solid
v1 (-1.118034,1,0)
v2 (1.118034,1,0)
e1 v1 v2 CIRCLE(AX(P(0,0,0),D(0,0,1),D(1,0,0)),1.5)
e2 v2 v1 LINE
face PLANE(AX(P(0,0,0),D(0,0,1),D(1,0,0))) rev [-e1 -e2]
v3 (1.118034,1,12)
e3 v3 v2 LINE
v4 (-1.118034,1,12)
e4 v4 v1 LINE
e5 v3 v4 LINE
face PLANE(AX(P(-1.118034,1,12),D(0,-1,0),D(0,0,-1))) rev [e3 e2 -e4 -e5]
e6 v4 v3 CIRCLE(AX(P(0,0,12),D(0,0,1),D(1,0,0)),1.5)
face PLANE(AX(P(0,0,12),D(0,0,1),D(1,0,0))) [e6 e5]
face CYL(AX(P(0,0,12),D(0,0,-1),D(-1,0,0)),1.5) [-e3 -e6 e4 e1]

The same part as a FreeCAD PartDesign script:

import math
import FreeCAD as App
import Part
import Sketcher
Q = App.Units.Quantity

doc = App.newDocument("Part")
body = doc.addObject("PartDesign::Body", "Body")

# Sketch on XY plane
sketch1 = doc.addObject("Sketcher::SketchObject", "Sketch")
body.addObject(sketch1)
sketch1.AttachmentSupport = (doc.XY_Plane, [""])
sketch1.MapMode = "FlatFace"
sketch1.addGeometry(Part.LineSegment(App.Vector(1.1, 1, 0), App.Vector(-1.1, 1, 0)), False)
sketch1.addGeometry(Part.ArcOfCircle(Part.Circle(App.Vector(0, 0, 0), App.Vector(0, 0, 1), 1.5), math.radians(138), math.radians(402)), False)
sketch1.addConstraint(Sketcher.Constraint("Coincident", 0, 1, 1, 2))
sketch1.addConstraint(Sketcher.Constraint("Coincident", 1, 1, 0, 2))
sketch1.addConstraint(Sketcher.Constraint("Horizontal", 0))
sketch1.addConstraint(Sketcher.Constraint("Coincident", 1, 3, -1, 1))
sketch1.addConstraint(Sketcher.Constraint("Radius", 1, Q("1.5 mm")))
sketch1.addConstraint(Sketcher.Constraint("DistanceY", -1, 1, 0, 1, Q("1 mm")))
pad1 = doc.addObject("PartDesign::Pad", "Pad")
body.addObject(pad1)
pad1.Profile = sketch1
pad1.Length = 12

doc.recompute()
